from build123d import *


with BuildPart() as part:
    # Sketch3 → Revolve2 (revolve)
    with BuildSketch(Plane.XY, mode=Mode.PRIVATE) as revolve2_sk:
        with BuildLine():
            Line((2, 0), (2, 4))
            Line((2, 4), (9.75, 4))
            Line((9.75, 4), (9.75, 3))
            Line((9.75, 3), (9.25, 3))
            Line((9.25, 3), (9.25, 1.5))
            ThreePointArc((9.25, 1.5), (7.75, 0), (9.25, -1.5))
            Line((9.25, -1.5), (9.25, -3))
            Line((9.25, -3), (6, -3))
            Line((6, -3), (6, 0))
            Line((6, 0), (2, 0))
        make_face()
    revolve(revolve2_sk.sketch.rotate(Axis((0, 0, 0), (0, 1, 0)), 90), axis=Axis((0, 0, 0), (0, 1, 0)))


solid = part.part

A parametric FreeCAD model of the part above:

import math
import FreeCAD as App
import Part
import Sketcher
Q = App.Units.Quantity

doc = App.newDocument("Part")
body = doc.addObject("PartDesign::Body", "Body")

# Sketch on XY plane
sketch1 = body.newObject("Sketcher::SketchObject", "Sketch")
sketch1.AttachmentSupport = (doc.getObject("XY_Plane"), [""])
sketch1.MapMode = "FlatFace"
sketch1.addGeometry([
    Part.LineSegment(App.Vector(2, 4, 0), App.Vector(2, 0, 0)),  # 0
    Part.LineSegment(App.Vector(2, 0, 0), App.Vector(6, 0, 0)),  # 1
    Part.LineSegment(App.Vector(6, 0, 0), App.Vector(6, -3, 0)),  # 2
    Part.LineSegment(App.Vector(6, -3, 0), App.Vector(9.2, -3, 0)),  # 3
    Part.LineSegment(App.Vector(9.2, -3, 0), App.Vector(9.2, -1.5, 0)),  # 4
    Part.ArcOfCircle(Part.Circle(App.Vector(9.2, 0, 0), App.Vector(0, 0, 1), 1.5), math.radians(90), math.radians(270)),  # 5
    Part.LineSegment(App.Vector(9.2, 1.5, 0), App.Vector(9.2, 3, 0)),  # 6
    Part.LineSegment(App.Vector(9.2, 3, 0), App.Vector(9.8, 3, 0)),  # 7
    Part.LineSegment(App.Vector(9.8, 3, 0), App.Vector(9.8, 4, 0)),  # 8
    Part.LineSegment(App.Vector(9.8, 4, 0), App.Vector(2, 4, 0)),  # 9
], False)
sketch1.addConstraint([
    Sketcher.Constraint("Coincident", 0, 2, 1, 1),
    Sketcher.Constraint("Coincident", 1, 2, 2, 1),
    Sketcher.Constraint("Coincident", 2, 2, 3, 1),
    Sketcher.Constraint("Coincident", 3, 2, 4, 1),
    Sketcher.Constraint("Coincident", 4, 2, 5, 2),
    Sketcher.Constraint("Coincident", 5, 1, 6, 1),
    Sketcher.Constraint("Coincident", 6, 2, 7, 1),
    Sketcher.Constraint("Coincident", 7, 2, 8, 1),
    Sketcher.Constraint("Coincident", 8, 2, 9, 1),
    Sketcher.Constraint("Coincident", 9, 2, 0, 1),
    Sketcher.Constraint("Vertical", 0),
    Sketcher.Constraint("Horizontal", 1),
    Sketcher.Constraint("Vertical", 2),
    Sketcher.Constraint("Horizontal", 3),
    Sketcher.Constraint("Vertical", 4),
    Sketcher.Constraint("Vertical", 6),
    Sketcher.Constraint("Horizontal", 7),
    Sketcher.Constraint("Vertical", 8),
    Sketcher.Constraint("Horizontal", 9),
    Sketcher.Constraint("Symmetric", 4, 2, 5, 1, -1),
    Sketcher.Constraint("PointOnObject", 0, 2, -1),
    Sketcher.Constraint("Vertical", 5, 3, 3, 2),
    Sketcher.Constraint("Equal", 1, 0),
    Sketcher.Constraint("Equal", 4, 6),
    Sketcher.Constraint("Radius", 5, Q("1.5 mm")),
    Sketcher.Constraint("DistanceX", 1, 1, 1, 2, Q("4 mm")),
    Sketcher.Constraint("DistanceY", 2, 2, 2, 1, Q("3 mm")),
    Sketcher.Constraint("DistanceX", 7, 1, 7, 2, Q("0.5 mm")),
    Sketcher.Constraint("DistanceX", -1, 1, 0, 2, Q("2 mm")),
    Sketcher.Constraint("DistanceX", 3, 1, 3, 2, Q("3.25 mm")),
])
revolution = body.newObject("PartDesign::Revolution", "Revolution")
revolution.Profile = sketch1
revolution.ReferenceAxis = (sketch1, ["V_Axis"])
revolution.Angle = 360

doc.recompute()
